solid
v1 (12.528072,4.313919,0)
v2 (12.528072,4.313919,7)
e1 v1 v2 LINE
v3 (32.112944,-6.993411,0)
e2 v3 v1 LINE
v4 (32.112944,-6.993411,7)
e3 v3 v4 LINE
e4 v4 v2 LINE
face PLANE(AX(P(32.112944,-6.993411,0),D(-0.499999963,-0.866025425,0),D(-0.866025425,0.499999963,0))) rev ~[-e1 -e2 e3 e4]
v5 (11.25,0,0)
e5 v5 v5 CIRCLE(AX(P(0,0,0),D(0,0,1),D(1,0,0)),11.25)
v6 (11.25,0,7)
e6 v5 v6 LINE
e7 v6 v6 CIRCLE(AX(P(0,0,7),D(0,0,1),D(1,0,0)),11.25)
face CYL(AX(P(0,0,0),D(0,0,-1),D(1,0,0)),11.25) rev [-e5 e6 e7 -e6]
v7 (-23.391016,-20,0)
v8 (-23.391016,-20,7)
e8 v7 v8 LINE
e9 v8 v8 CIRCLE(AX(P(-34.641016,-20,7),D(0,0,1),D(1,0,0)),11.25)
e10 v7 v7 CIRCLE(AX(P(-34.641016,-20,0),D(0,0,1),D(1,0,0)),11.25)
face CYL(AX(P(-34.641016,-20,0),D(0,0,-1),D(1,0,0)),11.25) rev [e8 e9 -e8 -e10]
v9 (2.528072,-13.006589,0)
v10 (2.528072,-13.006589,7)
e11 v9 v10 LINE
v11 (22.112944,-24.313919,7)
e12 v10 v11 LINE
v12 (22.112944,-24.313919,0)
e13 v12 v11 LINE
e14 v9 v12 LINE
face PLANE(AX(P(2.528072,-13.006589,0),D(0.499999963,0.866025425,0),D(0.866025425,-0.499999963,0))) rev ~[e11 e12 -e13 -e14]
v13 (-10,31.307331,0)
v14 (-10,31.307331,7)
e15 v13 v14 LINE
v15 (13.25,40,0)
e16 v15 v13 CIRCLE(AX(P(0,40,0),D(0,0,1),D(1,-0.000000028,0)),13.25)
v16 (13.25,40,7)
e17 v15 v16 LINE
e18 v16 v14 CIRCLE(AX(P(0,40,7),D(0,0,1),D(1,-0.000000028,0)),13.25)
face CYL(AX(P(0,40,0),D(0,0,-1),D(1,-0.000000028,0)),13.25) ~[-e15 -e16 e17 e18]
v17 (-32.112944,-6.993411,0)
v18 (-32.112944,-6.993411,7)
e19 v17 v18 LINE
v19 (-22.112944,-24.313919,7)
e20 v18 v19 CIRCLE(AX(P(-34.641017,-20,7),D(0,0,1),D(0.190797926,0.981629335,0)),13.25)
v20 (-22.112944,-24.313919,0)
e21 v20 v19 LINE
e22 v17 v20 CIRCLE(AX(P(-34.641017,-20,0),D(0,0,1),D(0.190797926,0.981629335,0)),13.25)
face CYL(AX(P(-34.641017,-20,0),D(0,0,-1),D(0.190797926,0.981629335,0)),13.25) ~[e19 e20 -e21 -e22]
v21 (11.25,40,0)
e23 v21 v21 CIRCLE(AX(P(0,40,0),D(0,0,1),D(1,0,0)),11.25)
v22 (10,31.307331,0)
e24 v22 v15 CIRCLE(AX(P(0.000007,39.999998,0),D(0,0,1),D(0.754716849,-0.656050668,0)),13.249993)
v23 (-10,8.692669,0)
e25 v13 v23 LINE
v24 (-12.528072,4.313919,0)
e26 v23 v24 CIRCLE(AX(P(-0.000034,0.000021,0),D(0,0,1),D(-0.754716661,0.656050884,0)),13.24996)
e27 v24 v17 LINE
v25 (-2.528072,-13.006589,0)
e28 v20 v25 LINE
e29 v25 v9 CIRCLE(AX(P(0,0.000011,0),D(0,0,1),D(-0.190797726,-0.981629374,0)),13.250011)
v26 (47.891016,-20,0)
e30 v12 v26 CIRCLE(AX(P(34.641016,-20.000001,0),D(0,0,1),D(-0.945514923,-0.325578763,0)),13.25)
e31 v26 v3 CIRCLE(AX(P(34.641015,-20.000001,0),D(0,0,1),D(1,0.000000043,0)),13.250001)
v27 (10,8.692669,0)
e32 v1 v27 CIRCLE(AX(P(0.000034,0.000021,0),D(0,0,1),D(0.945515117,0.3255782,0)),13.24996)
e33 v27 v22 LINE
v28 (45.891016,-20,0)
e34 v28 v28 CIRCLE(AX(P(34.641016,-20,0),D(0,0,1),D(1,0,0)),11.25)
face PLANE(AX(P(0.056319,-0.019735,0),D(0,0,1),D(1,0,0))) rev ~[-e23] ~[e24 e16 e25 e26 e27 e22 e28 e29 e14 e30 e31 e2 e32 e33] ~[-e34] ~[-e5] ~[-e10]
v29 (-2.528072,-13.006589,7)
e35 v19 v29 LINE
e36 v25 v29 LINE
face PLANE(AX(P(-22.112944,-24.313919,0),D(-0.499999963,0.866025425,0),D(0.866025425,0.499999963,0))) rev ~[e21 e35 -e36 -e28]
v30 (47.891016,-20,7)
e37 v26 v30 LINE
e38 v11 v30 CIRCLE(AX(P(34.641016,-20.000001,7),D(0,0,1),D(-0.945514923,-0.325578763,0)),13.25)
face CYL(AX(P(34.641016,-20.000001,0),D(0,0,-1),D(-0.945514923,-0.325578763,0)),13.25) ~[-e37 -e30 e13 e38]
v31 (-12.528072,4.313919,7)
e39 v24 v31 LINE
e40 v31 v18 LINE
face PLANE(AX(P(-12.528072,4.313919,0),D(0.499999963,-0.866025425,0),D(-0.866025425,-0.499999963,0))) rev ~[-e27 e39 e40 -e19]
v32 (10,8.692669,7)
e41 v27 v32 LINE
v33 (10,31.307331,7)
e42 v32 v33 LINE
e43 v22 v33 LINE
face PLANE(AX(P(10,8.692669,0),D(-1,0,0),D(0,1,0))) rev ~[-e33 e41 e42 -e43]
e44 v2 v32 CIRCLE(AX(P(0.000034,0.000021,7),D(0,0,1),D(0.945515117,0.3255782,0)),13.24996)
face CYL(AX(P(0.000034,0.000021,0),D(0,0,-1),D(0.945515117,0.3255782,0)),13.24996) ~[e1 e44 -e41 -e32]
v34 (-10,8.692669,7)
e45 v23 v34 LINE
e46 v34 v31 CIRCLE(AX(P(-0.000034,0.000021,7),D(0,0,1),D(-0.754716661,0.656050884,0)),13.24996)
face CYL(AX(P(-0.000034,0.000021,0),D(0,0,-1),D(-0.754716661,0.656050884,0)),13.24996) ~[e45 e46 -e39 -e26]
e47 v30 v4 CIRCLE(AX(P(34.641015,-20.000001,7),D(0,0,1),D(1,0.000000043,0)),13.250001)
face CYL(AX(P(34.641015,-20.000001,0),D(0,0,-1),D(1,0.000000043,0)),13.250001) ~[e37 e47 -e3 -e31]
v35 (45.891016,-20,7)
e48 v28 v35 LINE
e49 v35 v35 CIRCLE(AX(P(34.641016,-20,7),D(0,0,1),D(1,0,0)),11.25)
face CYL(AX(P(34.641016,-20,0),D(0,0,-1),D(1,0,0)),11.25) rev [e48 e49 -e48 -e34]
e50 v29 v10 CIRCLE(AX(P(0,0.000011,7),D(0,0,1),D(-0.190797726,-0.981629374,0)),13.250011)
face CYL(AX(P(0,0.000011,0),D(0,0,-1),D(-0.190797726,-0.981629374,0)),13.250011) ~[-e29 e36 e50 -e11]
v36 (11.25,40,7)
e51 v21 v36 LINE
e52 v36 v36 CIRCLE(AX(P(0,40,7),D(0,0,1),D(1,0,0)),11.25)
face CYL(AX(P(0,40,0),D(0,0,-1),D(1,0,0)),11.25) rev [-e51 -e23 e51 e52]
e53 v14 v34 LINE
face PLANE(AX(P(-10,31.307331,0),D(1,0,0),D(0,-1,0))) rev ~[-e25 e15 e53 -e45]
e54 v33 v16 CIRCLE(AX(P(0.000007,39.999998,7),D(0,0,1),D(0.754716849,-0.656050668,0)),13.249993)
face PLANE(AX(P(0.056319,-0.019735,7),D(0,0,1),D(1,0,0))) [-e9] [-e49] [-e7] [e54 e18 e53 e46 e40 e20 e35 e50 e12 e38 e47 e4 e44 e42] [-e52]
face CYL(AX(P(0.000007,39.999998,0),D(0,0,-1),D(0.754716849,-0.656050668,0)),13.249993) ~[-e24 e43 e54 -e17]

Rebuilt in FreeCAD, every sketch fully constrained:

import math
import FreeCAD as App
import Part
import Sketcher
Q = App.Units.Quantity

doc = App.newDocument("Part")
body = doc.addObject("PartDesign::Body", "Body")

sketch1 = body.newObject("Sketcher::SketchObject", "Sketch")
sketch1.AttachmentSupport = (doc.getObject("XY_Plane"), [""])
sketch1.MapMode = "FlatFace"
sketch1.addGeometry([
    Part.ArcOfCircle(Part.Circle(App.Vector(0, 0.000011, 0), App.Vector(0, 0, 1), 13.250011), math.radians(-100.999342), math.radians(-79.000658)),
    Part.LineSegment(App.Vector(2.528072, -13.006589, 0), App.Vector(22.112944, -24.313919, 0)),
    Part.ArcOfCircle(Part.Circle(App.Vector(34.641016, -20.000001, 0), App.Vector(0, 0, 1), 13.25), math.radians(-160.999357), math.radians(0.000002)),
    Part.ArcOfCircle(Part.Circle(App.Vector(34.641015, -20.000001, 0), App.Vector(0, 0, 1), 13.250001), math.radians(0.000002), math.radians(100.999348)),
    Part.LineSegment(App.Vector(32.112944, -6.993411, 0), App.Vector(12.528072, 4.313919, 0)),
    Part.ArcOfCircle(Part.Circle(App.Vector(0.000034, 0.000021, 0), App.Vector(0, 0, 1), 13.24996), math.radians(19.000609), math.radians(40.999382)),
    Part.LineSegment(App.Vector(10, 8.692669, 0), App.Vector(10, 31.307331, 0)),
    Part.ArcOfCircle(Part.Circle(App.Vector(0.000007, 39.999998, 0), App.Vector(0, 0, 1), 13.249993), math.radians(-40.999365), math.radians(0.00001)),
    Part.ArcOfCircle(Part.Circle(App.Vector(0, 40, 0), App.Vector(0, 0, 1), 13.25), math.radians(-0.000002), math.radians(220.999354)),
    Part.LineSegment(App.Vector(-10, 31.307331, 0), App.Vector(-10, 8.692669, 0)),
    Part.ArcOfCircle(Part.Circle(App.Vector(-0.000034, 0.000021, 0), App.Vector(0, 0, 1), 13.24996), math.radians(139.000618), math.radians(160.999391)),
    Part.LineSegment(App.Vector(-12.528072, 4.313919, 0), App.Vector(-32.112944, -6.993411, 0)),
    Part.ArcOfCircle(Part.Circle(App.Vector(-34.641017, -20, 0), App.Vector(0, 0, 1), 13.25), math.radians(79.000646), math.radians(340.999354)),
    Part.LineSegment(App.Vector(-22.112944, -24.313919, 0), App.Vector(-2.528072, -13.006589, 0)),
    Part.Circle(App.Vector(-34.641016, -20, 0), App.Vector(0, 0, 1), 11.25),
    Part.Circle(App.Vector(34.641016, -20, 0), App.Vector(0, 0, 1), 11.25),
    Part.Circle(App.Vector(0, 0, 0), App.Vector(0, 0, 1), 11.25),
    Part.Circle(App.Vector(0, 40, 0), App.Vector(0, 0, 1), 11.25),
], False)
sketch1.addConstraint([
    Sketcher.Constraint("Coincident", 0, 2, 1, 1),
    Sketcher.Constraint("Coincident", 1, 2, 2, 1),
    Sketcher.Constraint("Tangent", 2, 2, 3, 1),
    Sketcher.Constraint("Coincident", 3, 2, 4, 1),
    Sketcher.Constraint("Coincident", 4, 2, 5, 1),
    Sketcher.Constraint("Coincident", 5, 2, 6, 1),
    Sketcher.Constraint("Coincident", 6, 2, 7, 1),
    Sketcher.Constraint("Tangent", 7, 2, 8, 1),
    Sketcher.Constraint("Coincident", 8, 2, 9, 1),
    Sketcher.Constraint("Coincident", 9, 2, 10, 1),
    Sketcher.Constraint("Coincident", 10, 2, 11, 1),
    Sketcher.Constraint("Coincident", 11, 2, 12, 1),
    Sketcher.Constraint("Coincident", 12, 2, 13, 1),
    Sketcher.Constraint("Coincident", 13, 2, 0, 1),
    Sketcher.Constraint("Vertical", 6),
    Sketcher.Constraint("Vertical", 9),
    Sketcher.Constraint("Coincident", 16, 3, -1, 1),
    Sketcher.Constraint("Coincident", 14, 3, 12, 3),
    Sketcher.Constraint("Coincident", 15, 3, 2, 3),
    Sketcher.Constraint("Coincident", 17, 3, 7, 3),
    Sketcher.Constraint("Equal", 2, 3),
    Sketcher.Constraint("Equal", 3, 8),
    Sketcher.Constraint("Equal", 5, 10),
    Sketcher.Constraint("Equal", 8, 12),
    Sketcher.Constraint("Equal", 14, 15),
    Sketcher.Constraint("Equal", 15, 16),
    Sketcher.Constraint("Equal", 16, 17),
    Sketcher.Constraint("Symmetric", 5, 3, 10, 3, -2),
    Sketcher.Constraint("Symmetric", 2, 3, 12, 3, -2),
    Sketcher.Constraint("Symmetric", 6, 2, 8, 2, -2),
    Sketcher.Constraint("Symmetric", 0, 2, 13, 2, -2),
    Sketcher.Constraint("PointOnObject", 8, 3, -2),
    Sketcher.Constraint("Parallel", 1, 4),
    Sketcher.Constraint("Parallel", 11, 13),
    Sketcher.Constraint("Horizontal", 15, 3, 2, 2),
    Sketcher.Constraint("Horizontal", 17, 3, 7, 2),
    Sketcher.Constraint("Horizontal", 4, 2, 10, 2),
    Sketcher.Constraint("Horizontal", 3, 2, 11, 2),
    Sketcher.Constraint("Equal", 1, 4),
    Sketcher.Constraint("Diameter", 14, 22.5),
    Sketcher.Constraint("Angle", 1, Q("-29.999998 deg")),
    Sketcher.Constraint("Radius", 2, 13.25),
    Sketcher.Constraint("DistanceY", 2, 3, -1, 1, 20.000001),
    Sketcher.Constraint("DistanceY", -1, 1, 8, 3, 40.0),
    Sketcher.Constraint("DistanceX", -1, 1, 5, 2, 10.0),
    Sketcher.Constraint("DistanceX", 1, 2, 3, 2, 10.0),
    Sketcher.Constraint("Radius", 0, 13.250011),
    Sketcher.Constraint("Radius", 5, 13.24996),
    Sketcher.Constraint("DistanceY", 0, 2, 0, 3, 13.0066),
    Sketcher.Constraint("DistanceY", 5, 3, 4, 2, 4.313898),
    Sketcher.Constraint("Distance", 1, 22.614662),
    Sketcher.Constraint("DistanceY", 6, 1, 6, 2, 22.614662),
])
pad1 = body.newObject("PartDesign::Pad", "Pad")
pad1.Profile = sketch1
pad1.Length = 7

doc.recompute()
